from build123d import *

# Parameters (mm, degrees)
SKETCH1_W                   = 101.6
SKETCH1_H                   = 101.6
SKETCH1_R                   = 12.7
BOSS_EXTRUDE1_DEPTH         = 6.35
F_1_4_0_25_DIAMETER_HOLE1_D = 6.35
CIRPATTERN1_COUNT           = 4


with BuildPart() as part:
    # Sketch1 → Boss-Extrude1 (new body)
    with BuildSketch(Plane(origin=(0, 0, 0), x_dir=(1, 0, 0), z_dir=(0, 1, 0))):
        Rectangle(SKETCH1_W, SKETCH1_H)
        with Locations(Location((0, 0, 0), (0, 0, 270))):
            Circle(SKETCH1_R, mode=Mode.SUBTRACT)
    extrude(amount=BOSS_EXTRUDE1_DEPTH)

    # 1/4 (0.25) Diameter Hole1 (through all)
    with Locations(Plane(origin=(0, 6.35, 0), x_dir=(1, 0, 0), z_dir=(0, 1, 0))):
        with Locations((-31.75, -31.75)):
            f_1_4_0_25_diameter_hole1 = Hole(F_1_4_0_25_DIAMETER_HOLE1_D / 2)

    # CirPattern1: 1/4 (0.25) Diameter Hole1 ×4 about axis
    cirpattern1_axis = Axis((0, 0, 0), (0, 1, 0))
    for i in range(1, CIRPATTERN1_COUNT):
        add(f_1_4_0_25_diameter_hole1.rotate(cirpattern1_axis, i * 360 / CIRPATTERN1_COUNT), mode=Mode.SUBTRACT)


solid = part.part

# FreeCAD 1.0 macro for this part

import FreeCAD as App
import Part
import Sketcher
from FreeCAD import Vector
Q = App.Units.Quantity


def add_polygon(sketch, points):
    """Adds a closed chain of lines whose ends are joined by coincident constraints."""
    first, n = sketch.GeometryCount, len(points)
    for a, b in zip(points, points[1:] + points[:1]):
        sketch.addGeometry(Part.LineSegment(App.Vector(*a, 0), App.Vector(*b, 0)), False)
    for i in range(n):
        sketch.addConstraint(Sketcher.Constraint("Coincident", first + i, 2, first + (i + 1) % n, 1))

doc = App.newDocument("Part")
body = doc.addObject("PartDesign::Body", "Body")

sketch1 = doc.addObject("Sketcher::SketchObject", "Sketch")
body.addObject(sketch1)
sketch1.AttachmentSupport = (doc.XZ_Plane, [""])
sketch1.MapMode = "FlatFace"
add_polygon(sketch1, [(-51, -51), (-51, 51), (51, 51), (51, -51)])
sketch1.addGeometry(Part.Circle(Vector(0, 0, 0), Vector(0, 0, 1), 13), False)
sketch1.addConstraint(Sketcher.Constraint("Vertical", 0))
sketch1.addConstraint(Sketcher.Constraint("Horizontal", 1))
sketch1.addConstraint(Sketcher.Constraint("Vertical", 2))
sketch1.addConstraint(Sketcher.Constraint("Horizontal", 3))
sketch1.addConstraint(Sketcher.Constraint("Coincident", 4, 3, -1, 1))
sketch1.addConstraint(Sketcher.Constraint("Symmetric", 0, 2, 2, 2, -1, 1))
sketch1.addConstraint(Sketcher.Constraint("Equal", 3, 0))
sketch1.addConstraint(Sketcher.Constraint("Diameter", 4, Q("1 in")))
sketch1.addConstraint(Sketcher.Constraint("DistanceX", 1, 1, 1, 2, Q("4 in")))
pad1 = doc.addObject("PartDesign::Pad", "Pad")
body.addObject(pad1)
pad1.Profile = sketch1
pad1.Length = Q("0.25 in")
pad1.Reversed = True

sketch2 = doc.addObject("Sketcher::SketchObject", "Sketch001")
body.addObject(sketch2)
sketch2.AttachmentSupport = (doc.XZ_Plane, [""])
sketch2.MapMode = "FlatFace"
sketch2.AttachmentOffset = App.Placement(Vector(0, 0, -0.25 * 25.4), App.Rotation())
sketch2.addGeometry(Part.Circle(Vector(-31.8, 31.8, 0), Vector(0, 0, 1), 3.2), False)
sketch2.addConstraint(Sketcher.Constraint("Diameter", 0, Q("0.25 in")))
sketch2.addConstraint(Sketcher.Constraint("DistanceX", 0, 3, -1, 1, Q("1.25 in")))
sketch2.addConstraint(Sketcher.Constraint("DistanceY", -1, 1, 0, 3, Q("1.25 in")))
doc.recompute()
hole = doc.addObject("PartDesign::Hole", "Hole")
body.addObject(hole)
hole.Profile = sketch2
hole.ThreadType = "None"
hole.Diameter = Q("0.25 in")
hole.DepthType = "ThroughAll"
hole.Reversed = True
doc.recompute()

polarpattern = doc.addObject("PartDesign::PolarPattern", "PolarPattern")
body.addObject(polarpattern)
polarpattern.Originals = [hole]
polarpattern.Axis = (doc.Y_Axis, [""])
polarpattern.Angle = 360
polarpattern.Occurrences = 4
body.Tip = polarpattern

doc.recompute()
